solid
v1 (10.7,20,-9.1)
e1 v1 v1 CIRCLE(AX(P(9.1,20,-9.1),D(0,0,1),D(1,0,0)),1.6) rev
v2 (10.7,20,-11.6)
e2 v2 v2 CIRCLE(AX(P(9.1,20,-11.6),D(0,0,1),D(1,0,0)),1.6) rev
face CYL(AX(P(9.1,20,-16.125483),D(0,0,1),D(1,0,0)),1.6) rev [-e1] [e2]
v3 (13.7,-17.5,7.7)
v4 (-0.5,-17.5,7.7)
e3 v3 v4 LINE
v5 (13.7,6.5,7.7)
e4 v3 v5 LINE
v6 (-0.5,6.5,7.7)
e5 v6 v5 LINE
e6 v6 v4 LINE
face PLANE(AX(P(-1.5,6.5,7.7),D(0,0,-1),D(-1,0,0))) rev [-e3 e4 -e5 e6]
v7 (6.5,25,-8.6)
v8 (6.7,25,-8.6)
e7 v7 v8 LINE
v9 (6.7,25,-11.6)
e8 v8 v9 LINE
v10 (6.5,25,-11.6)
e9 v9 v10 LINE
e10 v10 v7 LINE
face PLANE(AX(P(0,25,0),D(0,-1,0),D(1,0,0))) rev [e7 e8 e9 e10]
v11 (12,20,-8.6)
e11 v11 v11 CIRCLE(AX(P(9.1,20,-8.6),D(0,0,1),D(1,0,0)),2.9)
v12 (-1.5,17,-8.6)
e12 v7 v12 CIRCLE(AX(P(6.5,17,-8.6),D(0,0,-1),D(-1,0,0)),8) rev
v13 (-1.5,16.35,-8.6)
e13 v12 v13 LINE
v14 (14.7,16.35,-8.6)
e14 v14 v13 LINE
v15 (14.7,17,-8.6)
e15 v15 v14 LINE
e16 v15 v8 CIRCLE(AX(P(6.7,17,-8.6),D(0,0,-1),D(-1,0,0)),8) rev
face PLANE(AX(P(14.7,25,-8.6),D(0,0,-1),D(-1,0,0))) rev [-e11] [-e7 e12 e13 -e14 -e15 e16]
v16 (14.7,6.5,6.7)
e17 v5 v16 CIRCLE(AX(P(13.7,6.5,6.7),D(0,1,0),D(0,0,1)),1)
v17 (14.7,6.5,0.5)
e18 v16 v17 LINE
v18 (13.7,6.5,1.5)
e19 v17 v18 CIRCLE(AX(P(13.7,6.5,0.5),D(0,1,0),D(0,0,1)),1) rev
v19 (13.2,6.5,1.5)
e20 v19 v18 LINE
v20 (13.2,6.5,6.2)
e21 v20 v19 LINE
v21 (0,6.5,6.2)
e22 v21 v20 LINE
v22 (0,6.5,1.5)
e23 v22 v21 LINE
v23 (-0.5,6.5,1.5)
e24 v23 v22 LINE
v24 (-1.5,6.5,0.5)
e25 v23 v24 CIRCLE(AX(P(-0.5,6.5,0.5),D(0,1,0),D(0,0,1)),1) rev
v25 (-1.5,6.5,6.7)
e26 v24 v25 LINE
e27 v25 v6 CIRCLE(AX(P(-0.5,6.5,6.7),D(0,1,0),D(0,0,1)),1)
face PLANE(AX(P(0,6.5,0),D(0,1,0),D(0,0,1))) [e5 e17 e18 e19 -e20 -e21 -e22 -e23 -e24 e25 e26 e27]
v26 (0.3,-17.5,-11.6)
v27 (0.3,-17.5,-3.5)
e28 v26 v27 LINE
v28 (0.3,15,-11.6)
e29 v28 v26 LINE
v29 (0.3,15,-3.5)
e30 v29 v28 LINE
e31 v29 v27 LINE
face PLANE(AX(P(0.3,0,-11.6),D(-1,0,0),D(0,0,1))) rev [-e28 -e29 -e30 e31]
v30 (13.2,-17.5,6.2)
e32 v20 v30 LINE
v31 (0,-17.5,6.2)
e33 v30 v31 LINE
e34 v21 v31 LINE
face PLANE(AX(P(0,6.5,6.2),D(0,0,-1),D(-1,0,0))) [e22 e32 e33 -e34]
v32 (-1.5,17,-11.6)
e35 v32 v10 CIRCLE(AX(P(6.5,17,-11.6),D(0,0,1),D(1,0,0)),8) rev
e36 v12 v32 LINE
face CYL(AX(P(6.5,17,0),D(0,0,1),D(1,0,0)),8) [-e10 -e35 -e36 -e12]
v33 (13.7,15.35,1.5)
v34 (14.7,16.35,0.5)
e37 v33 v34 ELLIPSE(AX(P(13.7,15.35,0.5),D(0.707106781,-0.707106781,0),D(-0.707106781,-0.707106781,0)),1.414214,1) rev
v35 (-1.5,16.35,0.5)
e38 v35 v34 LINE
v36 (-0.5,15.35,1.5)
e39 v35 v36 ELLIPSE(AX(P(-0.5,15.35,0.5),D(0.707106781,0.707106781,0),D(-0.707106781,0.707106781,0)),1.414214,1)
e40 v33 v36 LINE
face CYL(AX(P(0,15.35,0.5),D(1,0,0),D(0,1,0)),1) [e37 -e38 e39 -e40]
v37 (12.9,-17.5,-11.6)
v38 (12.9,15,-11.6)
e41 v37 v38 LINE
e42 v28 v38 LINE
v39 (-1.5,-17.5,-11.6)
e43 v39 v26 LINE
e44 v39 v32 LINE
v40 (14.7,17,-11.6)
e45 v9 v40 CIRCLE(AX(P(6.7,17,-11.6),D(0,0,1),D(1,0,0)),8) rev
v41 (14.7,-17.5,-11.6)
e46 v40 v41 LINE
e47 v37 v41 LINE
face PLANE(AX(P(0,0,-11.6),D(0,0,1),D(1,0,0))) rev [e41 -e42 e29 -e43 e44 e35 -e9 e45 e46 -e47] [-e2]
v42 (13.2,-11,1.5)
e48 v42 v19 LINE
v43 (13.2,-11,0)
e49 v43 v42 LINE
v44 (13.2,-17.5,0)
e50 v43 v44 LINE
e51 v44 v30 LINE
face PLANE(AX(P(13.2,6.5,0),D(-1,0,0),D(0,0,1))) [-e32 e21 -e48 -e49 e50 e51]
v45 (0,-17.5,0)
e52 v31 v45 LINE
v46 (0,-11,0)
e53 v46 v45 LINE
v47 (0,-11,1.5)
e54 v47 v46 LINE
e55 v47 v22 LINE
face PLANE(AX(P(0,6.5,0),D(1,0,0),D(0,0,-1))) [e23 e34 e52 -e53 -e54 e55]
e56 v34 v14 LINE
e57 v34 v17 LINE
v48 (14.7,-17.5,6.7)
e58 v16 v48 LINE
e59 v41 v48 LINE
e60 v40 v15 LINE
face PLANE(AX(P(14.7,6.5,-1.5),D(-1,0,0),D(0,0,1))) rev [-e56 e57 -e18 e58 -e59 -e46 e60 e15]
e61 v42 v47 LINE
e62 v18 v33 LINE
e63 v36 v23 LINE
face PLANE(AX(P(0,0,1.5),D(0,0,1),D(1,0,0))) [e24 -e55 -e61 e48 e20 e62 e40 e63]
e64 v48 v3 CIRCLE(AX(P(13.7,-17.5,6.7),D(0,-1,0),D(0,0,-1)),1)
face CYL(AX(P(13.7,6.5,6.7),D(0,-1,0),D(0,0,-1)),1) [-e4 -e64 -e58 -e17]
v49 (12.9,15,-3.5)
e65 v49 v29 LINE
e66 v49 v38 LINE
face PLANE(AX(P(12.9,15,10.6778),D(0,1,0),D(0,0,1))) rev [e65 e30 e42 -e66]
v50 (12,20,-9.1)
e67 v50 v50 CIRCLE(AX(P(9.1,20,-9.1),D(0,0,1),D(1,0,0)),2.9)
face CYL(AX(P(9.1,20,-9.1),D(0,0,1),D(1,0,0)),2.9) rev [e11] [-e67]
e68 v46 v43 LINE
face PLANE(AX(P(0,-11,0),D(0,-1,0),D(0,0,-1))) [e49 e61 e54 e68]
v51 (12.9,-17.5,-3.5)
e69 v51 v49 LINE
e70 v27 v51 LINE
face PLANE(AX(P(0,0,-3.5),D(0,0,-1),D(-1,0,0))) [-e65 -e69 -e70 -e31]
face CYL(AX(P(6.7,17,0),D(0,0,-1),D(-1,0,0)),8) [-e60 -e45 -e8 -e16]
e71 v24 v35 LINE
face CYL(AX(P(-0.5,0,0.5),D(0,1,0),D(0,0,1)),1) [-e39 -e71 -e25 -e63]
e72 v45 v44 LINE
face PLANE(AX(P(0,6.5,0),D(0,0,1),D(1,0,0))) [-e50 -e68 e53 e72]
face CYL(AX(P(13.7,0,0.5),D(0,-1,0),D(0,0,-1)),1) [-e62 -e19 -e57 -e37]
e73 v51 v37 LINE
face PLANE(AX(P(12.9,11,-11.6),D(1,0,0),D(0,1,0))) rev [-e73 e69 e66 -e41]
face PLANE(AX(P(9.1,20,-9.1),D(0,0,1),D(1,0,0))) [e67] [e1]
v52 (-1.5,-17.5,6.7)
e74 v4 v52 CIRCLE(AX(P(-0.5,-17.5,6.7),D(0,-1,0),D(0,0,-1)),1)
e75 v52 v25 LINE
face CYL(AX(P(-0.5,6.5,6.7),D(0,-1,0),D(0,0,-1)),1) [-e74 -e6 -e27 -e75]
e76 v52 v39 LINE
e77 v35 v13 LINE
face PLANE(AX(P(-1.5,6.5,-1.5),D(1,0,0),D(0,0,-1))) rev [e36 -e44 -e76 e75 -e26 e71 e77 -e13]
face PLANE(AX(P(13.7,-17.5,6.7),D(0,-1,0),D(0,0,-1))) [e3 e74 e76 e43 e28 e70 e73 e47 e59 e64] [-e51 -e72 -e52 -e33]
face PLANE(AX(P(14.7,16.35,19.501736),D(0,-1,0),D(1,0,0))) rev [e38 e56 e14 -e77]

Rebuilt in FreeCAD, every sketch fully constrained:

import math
import FreeCAD as App
import Part
import Sketcher
from FreeCAD import Vector
Q = App.Units.Quantity


def edges_at(feature, points):
    """Names of the edges that pass closest to the given points."""
    edges = feature.Shape.Edges
    near = lambda p: min(range(len(edges)), key=lambda i: edges[i].distToShape(Part.Vertex(*p))[0])
    return sorted({f"Edge{near(p) + 1}" for p in points})

doc = App.newDocument("Part")
params = doc.addObject("Spreadsheet::Sheet", "Params")
for row, (alias, value) in enumerate([
    ("sketch1_width", "16.2 mm"),
    ("sketch1_width2", "13.2 mm"),
    ("sketch1_height", "9.2 mm"),
    ("sketch1_height2", "6.2 mm"),
    ("pad1_length", "6.5 mm"),
    ("sketch2_height", "12 mm"),
    ("sketch2_width", "16.2 mm"),
    ("pad2_length", "2 mm"),
    ("sketch3_height", "12 mm"),
    ("sketch3_height2", "11 mm"),
    ("sketch3_width", "16.2 mm"),
    ("sketch3_width2", "1.8 mm"),
    ("pad3_length", "8.1 mm"),
    ("sketch4_height", "3 mm"),
    ("sketch4_width", "16.2 mm"),
    ("pad4_length", "13 mm"),
    ("sketch5_diameter", "3.2 mm"),
    ("pocket1_length", "3 mm"),
    ("sketch6_height", "2 mm"),
    ("sketch6_width", "16.2 mm"),
    ("pad5_length", "3 mm"),
    ("sketch7_diameter", "5.8 mm"),
    ("pocket2_length", "0.5 mm"),
    ("fillet_radius", "1 mm"),
    ("fillet2_radius", "8 mm"),
    ("sketch8_radius", "1 mm"),
    ("sketch8_width", "14.2 mm"),
    ("sketch8_width2", "1.8 mm"),
    ("sketch8_width3", "13.2 mm"),
    ("sketch8_height", "18.3 mm"),
    ("pad6_length", "3.5 mm"),
    ("sketch9_width", "13.2 mm"),
    ("sketch9_height", "1.5 mm"),
    ("pad7_length", "3.5 mm"),
    ("sketch10_radius", "1 mm"),
    ("sketch10_width", "14.2 mm"),
    ("sketch10_width2", "1.8 mm"),
    ("sketch10_width3", "13.2 mm"),
    ("sketch10_height", "18.3 mm"),
    ("pad8_length", "14 mm"),
    ("sketch11_width", "13.2 mm"),
    ("sketch11_height", "1.5 mm"),
    ("pad9_length", "14 mm"),
    ("sketch12_width", "16.2 mm"),
    ("sketch12_height", "7.85 mm"),
    ("pad10_length", "10.1 mm"),
    ("sketch13_width", "12.6 mm"),
    ("sketch13_height", "6.5 mm"),
    ("pocket3_length", "8.1 mm"),
    ("fillet3_radius", "1 mm"),
], start=1):
    params.set(f"A{row}", alias)
    params.set(f"B{row}", "=" + value)
    params.setAlias(f"B{row}", alias)

body = doc.addObject("PartDesign::Body", "Body")

# Sketch on XZ plane
sketch1 = body.newObject("Sketcher::SketchObject", "Sketch")
sketch1.AttachmentSupport = (doc.getObject("XZ_Plane"), [""])
sketch1.MapMode = "FlatFace"
sketch1.addGeometry([
    Part.LineSegment(Vector(-2, -2, 0), Vector(-2, 8, 0)),  # 0
    Part.LineSegment(Vector(-2, 8, 0), Vector(15, 8, 0)),  # 1
    Part.LineSegment(Vector(15, 8, 0), Vector(15, -2, 0)),  # 2
    Part.LineSegment(Vector(15, -2, 0), Vector(-2, -2, 0)),  # 3
    Part.LineSegment(Vector(13, 6, 0), Vector(0, 6, 0)),  # 4
    Part.LineSegment(Vector(0, 6, 0), Vector(0, 0, 0)),  # 5
    Part.LineSegment(Vector(0, 0, 0), Vector(13, 0, 0)),  # 6
    Part.LineSegment(Vector(13, 0, 0), Vector(13, 6, 0)),  # 7
], False)
sketch1.addConstraint([
    Sketcher.Constraint("Coincident", 0, 2, 1, 1),
    Sketcher.Constraint("Coincident", 1, 2, 2, 1),
    Sketcher.Constraint("Coincident", 2, 2, 3, 1),
    Sketcher.Constraint("Coincident", 3, 2, 0, 1),
    Sketcher.Constraint("Coincident", 4, 2, 5, 1),
    Sketcher.Constraint("Coincident", 5, 2, 6, 1),
    Sketcher.Constraint("Coincident", 6, 2, 7, 1),
    Sketcher.Constraint("Coincident", 7, 2, 4, 1),
    Sketcher.Constraint("Vertical", 0),
    Sketcher.Constraint("Horizontal", 1),
    Sketcher.Constraint("Vertical", 2),
    Sketcher.Constraint("Horizontal", 3),
    Sketcher.Constraint("Horizontal", 4),
    Sketcher.Constraint("Vertical", 5),
    Sketcher.Constraint("Horizontal", 6),
    Sketcher.Constraint("Vertical", 7),
    Sketcher.Constraint("Coincident", 5, 2, -1, 1),
    Sketcher.Constraint("DistanceX", 1, 1, 1, 2, Q("16.2 mm")),
    Sketcher.Constraint("DistanceX", 4, 2, 4, 1, Q("13.2 mm")),
    Sketcher.Constraint("DistanceY", 0, 1, 0, 2, Q("9.2 mm")),
    Sketcher.Constraint("DistanceY", 5, 2, 5, 1, Q("6.2 mm")),
    Sketcher.Constraint("DistanceX", 0, 2, -1, 1, Q("1.5 mm")),
    Sketcher.Constraint("DistanceY", -1, 1, 0, 2, Q("7.7 mm")),
])
sketch1.setExpression("Constraints[17]", "Params.sketch1_width")
sketch1.setExpression("Constraints[18]", "Params.sketch1_width2")
sketch1.setExpression("Constraints[19]", "Params.sketch1_height")
sketch1.setExpression("Constraints[20]", "Params.sketch1_height2")
pad1 = body.newObject("PartDesign::Pad", "Pad")
pad1.Profile = sketch1
pad1.setExpression("Length", "Params.pad1_length")
pad1.Reversed = True

# Sketch on XY plane
sketch2 = body.newObject("Sketcher::SketchObject", "Sketch001")
sketch2.AttachmentSupport = (doc.getObject("XY_Plane"), [""])
sketch2.MapMode = "FlatFace"
sketch2.AttachmentOffset = App.Placement(Vector(0, 0, -1.5), App.Rotation())
sketch2.addGeometry([
    Part.LineSegment(Vector(15, 12, 0), Vector(15, 0, 0)),
    Part.LineSegment(Vector(15, 0, 0), Vector(-2, 0, 0)),
    Part.LineSegment(Vector(-2, 0, 0), Vector(-2, 12, 0)),
    Part.LineSegment(Vector(-2, 12, 0), Vector(15, 12, 0)),
], False)
sketch2.addConstraint([
    Sketcher.Constraint("Coincident", 0, 2, 1, 1),
    Sketcher.Constraint("Coincident", 1, 2, 2, 1),
    Sketcher.Constraint("Coincident", 2, 2, 3, 1),
    Sketcher.Constraint("Coincident", 3, 2, 0, 1),
    Sketcher.Constraint("Vertical", 0),
    Sketcher.Constraint("Horizontal", 1),
    Sketcher.Constraint("Vertical", 2),
    Sketcher.Constraint("Horizontal", 3),
    Sketcher.Constraint("PointOnObject", 0, 2, -1),
    Sketcher.Constraint("DistanceY", 0, 2, 0, 1, Q("12 mm")),
    Sketcher.Constraint("DistanceX", 1, 2, 1, 1, Q("16.2 mm")),
    Sketcher.Constraint("DistanceX", -1, 1, 0, 2, Q("14.7 mm")),
])
sketch2.setExpression("Constraints[9]", "Params.sketch2_height")
sketch2.setExpression("Constraints[10]", "Params.sketch2_width")
pad2 = body.newObject("PartDesign::Pad", "Pad001")
pad2.Profile = sketch2
pad2.setExpression("Length", "Params.pad2_length")
pad2.Reversed = True

# Sketch on XY plane
sketch3 = body.newObject("Sketcher::SketchObject", "Sketch002")
sketch3.AttachmentSupport = (doc.getObject("XY_Plane"), [""])
sketch3.MapMode = "FlatFace"
sketch3.AttachmentOffset = App.Placement(Vector(0, 0, -3.5), App.Rotation())
sketch3.addGeometry([
    Part.LineSegment(Vector(-1.5, 0, 0), Vector(-1.5, 12, 0)),  # 0
    Part.LineSegment(Vector(-1.5, 12, 0), Vector(14.7, 12, 0)),  # 1
    Part.LineSegment(Vector(14.7, 12, 0), Vector(14.7, 0, 0)),  # 2
    Part.LineSegment(Vector(14.7, 0, 0), Vector(12.9, 0, 0)),  # 3
    Part.LineSegment(Vector(12.9, 0, 0), Vector(12.9, 11, 0)),  # 4
    Part.LineSegment(Vector(12.9, 11, 0), Vector(0.3, 11, 0)),  # 5
    Part.LineSegment(Vector(0.3, 11, 0), Vector(0.3, 0, 0)),  # 6
    Part.LineSegment(Vector(0.3, 0, 0), Vector(-1.5, 0, 0)),  # 7
], False)
sketch3.addConstraint([
    Sketcher.Constraint("Coincident", 0, 2, 1, 1),
    Sketcher.Constraint("Coincident", 1, 2, 2, 1),
    Sketcher.Constraint("Coincident", 2, 2, 3, 1),
    Sketcher.Constraint("Coincident", 3, 2, 4, 1),
    Sketcher.Constraint("Coincident", 4, 2, 5, 1),
    Sketcher.Constraint("Coincident", 5, 2, 6, 1),
    Sketcher.Constraint("Coincident", 6, 2, 7, 1),
    Sketcher.Constraint("Coincident", 7, 2, 0, 1),
    Sketcher.Constraint("Vertical", 0),
    Sketcher.Constraint("Horizontal", 1),
    Sketcher.Constraint("Vertical", 2),
    Sketcher.Constraint("Horizontal", 3),
    Sketcher.Constraint("Vertical", 4),
    Sketcher.Constraint("Horizontal", 5),
    Sketcher.Constraint("Vertical", 6),
    Sketcher.Constraint("Horizontal", 7),
    Sketcher.Constraint("PointOnObject", 2, 2, -1),
    Sketcher.Constraint("PointOnObject", 6, 2, -1),
    Sketcher.Constraint("Equal", 3, 7),
    Sketcher.Constraint("DistanceY", 0, 1, 0, 2, Q("12 mm")),
    Sketcher.Constraint("DistanceY", 4, 1, 4, 2, Q("11 mm")),
    Sketcher.Constraint("DistanceX", 1, 1, 1, 2, Q("16.2 mm")),
    Sketcher.Constraint("DistanceX", 3, 2, 3, 1, Q("1.8 mm")),
    Sketcher.Constraint("DistanceX", 0, 2, -1, 1, Q("1.5 mm")),
])
sketch3.setExpression("Constraints[19]", "Params.sketch3_height")
sketch3.setExpression("Constraints[20]", "Params.sketch3_height2")
sketch3.setExpression("Constraints[21]", "Params.sketch3_width")
sketch3.setExpression("Constraints[22]", "Params.sketch3_width2")
pad3 = body.newObject("PartDesign::Pad", "Pad002")
pad3.Profile = sketch3
pad3.setExpression("Length", "Params.pad3_length")
pad3.Reversed = True

# Sketch on XZ plane
sketch4 = body.newObject("Sketcher::SketchObject", "Sketch003")
sketch4.AttachmentSupport = (doc.getObject("XZ_Plane"), [""])
sketch4.MapMode = "FlatFace"
sketch4.AttachmentOffset = App.Placement(Vector(0, 0, -12), App.Rotation())
sketch4.addGeometry([
    Part.LineSegment(Vector(-1.5, -11.6, 0), Vector(-1.5, -8.6, 0)),
    Part.LineSegment(Vector(-1.5, -8.6, 0), Vector(14.7, -8.6, 0)),
    Part.LineSegment(Vector(14.7, -8.6, 0), Vector(14.7, -11.6, 0)),
    Part.LineSegment(Vector(14.7, -11.6, 0), Vector(-1.5, -11.6, 0)),
], False)
sketch4.addConstraint([
    Sketcher.Constraint("Coincident", 0, 2, 1, 1),
    Sketcher.Constraint("Coincident", 1, 2, 2, 1),
    Sketcher.Constraint("Coincident", 2, 2, 3, 1),
    Sketcher.Constraint("Coincident", 3, 2, 0, 1),
    Sketcher.Constraint("Vertical", 0),
    Sketcher.Constraint("Horizontal", 1),
    Sketcher.Constraint("Vertical", 2),
    Sketcher.Constraint("Horizontal", 3),
    Sketcher.Constraint("DistanceY", 0, 1, 0, 2, Q("3 mm")),
    Sketcher.Constraint("DistanceX", 1, 1, 1, 2, Q("16.2 mm")),
    Sketcher.Constraint("DistanceX", 0, 2, -1, 1, Q("1.5 mm")),
    Sketcher.Constraint("DistanceY", 0, 2, -1, 1, Q("8.6 mm")),
])
sketch4.setExpression("Constraints[8]", "Params.sketch4_height")
sketch4.setExpression("Constraints[9]", "Params.sketch4_width")
pad4 = body.newObject("PartDesign::Pad", "Pad003")
pad4.Profile = sketch4
pad4.setExpression("Length", "Params.pad4_length")
pad4.Reversed = True

# Sketch on XY plane
sketch5 = body.newObject("Sketcher::SketchObject", "Sketch004")
sketch5.AttachmentSupport = (doc.getObject("XY_Plane"), [""])
sketch5.MapMode = "FlatFace"
sketch5.AttachmentOffset = App.Placement(Vector(0, 0, -8.6), App.Rotation())
sketch5.addGeometry(Part.Circle(Vector(9.1, 20, 0), Vector(0, 0, 1), 1.6), False)
sketch5.addConstraint([
    Sketcher.Constraint("Diameter", 0, Q("3.2 mm")),
    Sketcher.Constraint("DistanceY", -1, 1, 0, 3, Q("20 mm")),
    Sketcher.Constraint("DistanceX", -1, 1, 0, 3, Q("9.1 mm")),
])
sketch5.setExpression("Constraints[0]", "Params.sketch5_diameter")
pocket1 = body.newObject("PartDesign::Pocket", "Pocket")
pocket1.Profile = sketch5
pocket1.setExpression("Length", "Params.pocket1_length")

# Sketch on XY plane
sketch6 = body.newObject("Sketcher::SketchObject", "Sketch005")
sketch6.AttachmentSupport = (doc.getObject("XY_Plane"), [""])
sketch6.MapMode = "FlatFace"
sketch6.AttachmentOffset = App.Placement(Vector(0, 0, -1.5), App.Rotation())
sketch6.addGeometry([
    Part.LineSegment(Vector(-1.5, 8.5, 0), Vector(-1.5, 6.5, 0)),
    Part.LineSegment(Vector(-1.5, 6.5, 0), Vector(14.7, 6.5, 0)),
    Part.LineSegment(Vector(14.7, 6.5, 0), Vector(14.7, 8.5, 0)),
    Part.LineSegment(Vector(14.7, 8.5, 0), Vector(-1.5, 8.5, 0)),
], False)
sketch6.addConstraint([
    Sketcher.Constraint("Coincident", 0, 2, 1, 1),
    Sketcher.Constraint("Coincident", 1, 2, 2, 1),
    Sketcher.Constraint("Coincident", 2, 2, 3, 1),
    Sketcher.Constraint("Coincident", 3, 2, 0, 1),
    Sketcher.Constraint("Vertical", 0),
    Sketcher.Constraint("Horizontal", 1),
    Sketcher.Constraint("Vertical", 2),
    Sketcher.Constraint("Horizontal", 3),
    Sketcher.Constraint("DistanceY", 0, 2, 0, 1, Q("2 mm")),
    Sketcher.Constraint("DistanceX", 1, 1, 1, 2, Q("16.2 mm")),
    Sketcher.Constraint("DistanceX", 0, 2, -1, 1, Q("1.5 mm")),
    Sketcher.Constraint("DistanceY", -1, 1, 0, 2, Q("6.5 mm")),
])
sketch6.setExpression("Constraints[8]", "Params.sketch6_height")
sketch6.setExpression("Constraints[9]", "Params.sketch6_width")
pad5 = body.newObject("PartDesign::Pad", "Pad004")
pad5.Profile = sketch6
pad5.setExpression("Length", "Params.pad5_length")

# Sketch on XY plane
sketch7 = body.newObject("Sketcher::SketchObject", "Sketch006")
sketch7.AttachmentSupport = (doc.getObject("XY_Plane"), [""])
sketch7.MapMode = "FlatFace"
sketch7.AttachmentOffset = App.Placement(Vector(0, 0, -8.6), App.Rotation())
sketch7.addGeometry(Part.Circle(Vector(9.1, 20, 0), Vector(0, 0, 1), 2.9), False)
sketch7.addConstraint([
    Sketcher.Constraint("Diameter", 0, Q("5.8 mm")),
    Sketcher.Constraint("DistanceY", -1, 1, 0, 3, Q("20 mm")),
    Sketcher.Constraint("DistanceX", -1, 1, 0, 3, Q("9.1 mm")),
])
sketch7.setExpression("Constraints[0]", "Params.sketch7_diameter")
pocket2 = body.newObject("PartDesign::Pocket", "Pocket001")
pocket2.Profile = sketch7
pocket2.setExpression("Length", "Params.pocket2_length")
doc.recompute()

fillet = body.newObject("PartDesign::Fillet", "Fillet")
fillet.Base = (pocket2, edges_at(pocket2, [(14.7, 3.25, 7.7), (-1.5, 3.25, 7.7)]))
fillet.setExpression("Radius", "Params.fillet_radius")
doc.recompute()

fillet2 = body.newObject("PartDesign::Fillet", "Fillet001")
fillet2.Base = (fillet, edges_at(fillet, [(14.7, 25, -10.1), (-1.5, 25, -10.1)]))
fillet2.setExpression("Radius", "Params.fillet2_radius")

# Sketch on XZ plane
sketch8 = body.newObject("Sketcher::SketchObject", "Sketch007")
sketch8.AttachmentSupport = (doc.getObject("XZ_Plane"), [""])
sketch8.MapMode = "FlatFace"
sketch8.addGeometry([
    Part.LineSegment(Vector(13.7, 7.7, 0), Vector(-0.5, 7.7, 0)),  # 0
    Part.ArcOfCircle(Part.Circle(Vector(-0.5, 6.7, 0), Vector(0, 0, 1), 1), math.radians(90), math.radians(180)),  # 1
    Part.LineSegment(Vector(-1.5, 6.7, 0), Vector(-1.5, -11.6, 0)),  # 2
    Part.LineSegment(Vector(-1.5, -11.6, 0), Vector(0.3, -11.6, 0)),  # 3
    Part.LineSegment(Vector(0.3, -11.6, 0), Vector(0.3, -3.5, 0)),  # 4
    Part.LineSegment(Vector(0.3, -3.5, 0), Vector(12.9, -3.5, 0)),  # 5
    Part.LineSegment(Vector(12.9, -3.5, 0), Vector(12.9, -11.6, 0)),  # 6
    Part.LineSegment(Vector(12.9, -11.6, 0), Vector(14.7, -11.6, 0)),  # 7
    Part.LineSegment(Vector(14.7, -11.6, 0), Vector(14.7, 6.7, 0)),  # 8
    Part.ArcOfCircle(Part.Circle(Vector(13.7, 6.7, 0), Vector(0, 0, 1), 1), math.radians(0), math.radians(90)),  # 9
    Part.LineSegment(Vector(13.2, 0, 0), Vector(0, 0, 0)),  # 10
    Part.LineSegment(Vector(0, 0, 0), Vector(0, 6.2, 0)),  # 11
    Part.LineSegment(Vector(0, 6.2, 0), Vector(13.2, 6.2, 0)),  # 12
    Part.LineSegment(Vector(13.2, 6.2, 0), Vector(13.2, 0, 0)),  # 13
], False)
sketch8.addConstraint([
    Sketcher.Constraint("Tangent", 0, 2, 1, 1),
    Sketcher.Constraint("Tangent", 1, 2, 2, 1),
    Sketcher.Constraint("Coincident", 2, 2, 3, 1),
    Sketcher.Constraint("Coincident", 3, 2, 4, 1),
    Sketcher.Constraint("Coincident", 4, 2, 5, 1),
    Sketcher.Constraint("Coincident", 5, 2, 6, 1),
    Sketcher.Constraint("Coincident", 6, 2, 7, 1),
    Sketcher.Constraint("Coincident", 7, 2, 8, 1),
    Sketcher.Constraint("Tangent", 8, 2, 9, 1),
    Sketcher.Constraint("Tangent", 9, 2, 0, 1),
    Sketcher.Constraint("Coincident", 10, 2, 11, 1),
    Sketcher.Constraint("Coincident", 11, 2, 12, 1),
    Sketcher.Constraint("Coincident", 12, 2, 13, 1),
    Sketcher.Constraint("Coincident", 13, 2, 10, 1),
    Sketcher.Constraint("Horizontal", 0),
    Sketcher.Constraint("Vertical", 2),
    Sketcher.Constraint("Horizontal", 3),
    Sketcher.Constraint("Vertical", 4),
    Sketcher.Constraint("Horizontal", 5),
    Sketcher.Constraint("Vertical", 6),
    Sketcher.Constraint("Horizontal", 7),
    Sketcher.Constraint("Vertical", 8),
    Sketcher.Constraint("Horizontal", 10),
    Sketcher.Constraint("Vertical", 11),
    Sketcher.Constraint("Horizontal", 12),
    Sketcher.Constraint("Vertical", 13),
    Sketcher.Constraint("Coincident", 10, 2, -1, 1),
    Sketcher.Constraint("Equal", 1, 9),
    Sketcher.Constraint("Horizontal", 3, 2, 6, 2),
    Sketcher.Constraint("Equal", 3, 7),
    Sketcher.Constraint("Radius", 1, Q("1 mm")),
    Sketcher.Constraint("DistanceX", 0, 2, 0, 1, Q("14.2 mm")),
    Sketcher.Constraint("DistanceX", 3, 1, 3, 2, Q("1.8 mm")),
    Sketcher.Constraint("DistanceX", 10, 2, 10, 1, Q("13.2 mm")),
    Sketcher.Constraint("DistanceY", 2, 2, 2, 1, Q("18.3 mm")),
    Sketcher.Constraint("DistanceY", 4, 1, 4, 2, Q("8.1 mm")),
    Sketcher.Constraint("DistanceY", 11, 1, 11, 2, Q("6.2 mm")),
    Sketcher.Constraint("DistanceX", 1, 3, -1, 1, Q("0.5 mm")),
    Sketcher.Constraint("DistanceY", -1, 1, 1, 3, Q("6.7 mm")),
])
sketch8.setExpression("Constraints[30]", "Params.sketch8_radius")
sketch8.setExpression("Constraints[31]", "Params.sketch8_width")
sketch8.setExpression("Constraints[32]", "Params.sketch8_width2")
sketch8.setExpression("Constraints[33]", "Params.sketch8_width3")
sketch8.setExpression("Constraints[34]", "Params.sketch8_height")
pad6 = body.newObject("PartDesign::Pad", "Pad005")
pad6.Profile = sketch8
pad6.setExpression("Length", "Params.pad6_length")

# Sketch on XZ plane
sketch9 = body.newObject("Sketcher::SketchObject", "Sketch008")
sketch9.AttachmentSupport = (doc.getObject("XZ_Plane"), [""])
sketch9.MapMode = "FlatFace"
sketch9.AttachmentOffset = App.Placement(Vector(0, 0, -6.5), App.Rotation())
sketch9.addGeometry([
    Part.LineSegment(Vector(0, 1.5, 0), Vector(0, 0, 0)),
    Part.LineSegment(Vector(0, 0, 0), Vector(13.2, 0, 0)),
    Part.LineSegment(Vector(13.2, 0, 0), Vector(13.2, 1.5, 0)),
    Part.LineSegment(Vector(13.2, 1.5, 0), Vector(0, 1.5, 0)),
], False)
sketch9.addConstraint([
    Sketcher.Constraint("Coincident", 0, 2, 1, 1),
    Sketcher.Constraint("Coincident", 1, 2, 2, 1),
    Sketcher.Constraint("Coincident", 2, 2, 3, 1),
    Sketcher.Constraint("Coincident", 3, 2, 0, 1),
    Sketcher.Constraint("Vertical", 0),
    Sketcher.Constraint("Horizontal", 1),
    Sketcher.Constraint("Vertical", 2),
    Sketcher.Constraint("Horizontal", 3),
    Sketcher.Constraint("Coincident", 0, 2, -1, 1),
    Sketcher.Constraint("DistanceX", 1, 1, 1, 2, Q("13.2 mm")),
    Sketcher.Constraint("DistanceY", 0, 2, 0, 1, Q("1.5 mm")),
])
sketch9.setExpression("Constraints[9]", "Params.sketch9_width")
sketch9.setExpression("Constraints[10]", "Params.sketch9_height")
pad7 = body.newObject("PartDesign::Pad", "Pad006")
pad7.Profile = sketch9
pad7.setExpression("Length", "Params.pad7_length")

# Sketch on XZ plane
sketch10 = body.newObject("Sketcher::SketchObject", "Sketch009")
sketch10.AttachmentSupport = (doc.getObject("XZ_Plane"), [""])
sketch10.MapMode = "FlatFace"
sketch10.AttachmentOffset = App.Placement(Vector(0, 0, 3.5), App.Rotation())
sketch10.addGeometry([
    Part.LineSegment(Vector(13.7, 7.7, 0), Vector(-0.5, 7.7, 0)),  # 0
    Part.ArcOfCircle(Part.Circle(Vector(-0.5, 6.7, 0), Vector(0, 0, 1), 1), math.radians(90), math.radians(180)),  # 1
    Part.LineSegment(Vector(-1.5, 6.7, 0), Vector(-1.5, -11.6, 0)),  # 2
    Part.LineSegment(Vector(-1.5, -11.6, 0), Vector(0.3, -11.6, 0)),  # 3
    Part.LineSegment(Vector(0.3, -11.6, 0), Vector(0.3, -3.5, 0)),  # 4
    Part.LineSegment(Vector(0.3, -3.5, 0), Vector(12.9, -3.5, 0)),  # 5
    Part.LineSegment(Vector(12.9, -3.5, 0), Vector(12.9, -11.6, 0)),  # 6
    Part.LineSegment(Vector(12.9, -11.6, 0), Vector(14.7, -11.6, 0)),  # 7
    Part.LineSegment(Vector(14.7, -11.6, 0), Vector(14.7, 6.7, 0)),  # 8
    Part.ArcOfCircle(Part.Circle(Vector(13.7, 6.7, 0), Vector(0, 0, 1), 1), math.radians(0), math.radians(90)),  # 9
    Part.LineSegment(Vector(13.2, 0, 0), Vector(0, 0, 0)),  # 10
    Part.LineSegment(Vector(0, 0, 0), Vector(0, 6.2, 0)),  # 11
    Part.LineSegment(Vector(0, 6.2, 0), Vector(13.2, 6.2, 0)),  # 12
    Part.LineSegment(Vector(13.2, 6.2, 0), Vector(13.2, 0, 0)),  # 13
], False)
sketch10.addConstraint([
    Sketcher.Constraint("Tangent", 0, 2, 1, 1),
    Sketcher.Constraint("Tangent", 1, 2, 2, 1),
    Sketcher.Constraint("Coincident", 2, 2, 3, 1),
    Sketcher.Constraint("Coincident", 3, 2, 4, 1),
    Sketcher.Constraint("Coincident", 4, 2, 5, 1),
    Sketcher.Constraint("Coincident", 5, 2, 6, 1),
    Sketcher.Constraint("Coincident", 6, 2, 7, 1),
    Sketcher.Constraint("Coincident", 7, 2, 8, 1),
    Sketcher.Constraint("Tangent", 8, 2, 9, 1),
    Sketcher.Constraint("Tangent", 9, 2, 0, 1),
    Sketcher.Constraint("Coincident", 10, 2, 11, 1),
    Sketcher.Constraint("Coincident", 11, 2, 12, 1),
    Sketcher.Constraint("Coincident", 12, 2, 13, 1),
    Sketcher.Constraint("Coincident", 13, 2, 10, 1),
    Sketcher.Constraint("Horizontal", 0),
    Sketcher.Constraint("Vertical", 2),
    Sketcher.Constraint("Horizontal", 3),
    Sketcher.Constraint("Vertical", 4),
    Sketcher.Constraint("Horizontal", 5),
    Sketcher.Constraint("Vertical", 6),
    Sketcher.Constraint("Horizontal", 7),
    Sketcher.Constraint("Vertical", 8),
    Sketcher.Constraint("Horizontal", 10),
    Sketcher.Constraint("Vertical", 11),
    Sketcher.Constraint("Horizontal", 12),
    Sketcher.Constraint("Vertical", 13),
    Sketcher.Constraint("Coincident", 10, 2, -1, 1),
    Sketcher.Constraint("Equal", 1, 9),
    Sketcher.Constraint("Horizontal", 3, 2, 6, 2),
    Sketcher.Constraint("Equal", 3, 7),
    Sketcher.Constraint("Radius", 1, Q("1 mm")),
    Sketcher.Constraint("DistanceX", 0, 2, 0, 1, Q("14.2 mm")),
    Sketcher.Constraint("DistanceX", 3, 1, 3, 2, Q("1.8 mm")),
    Sketcher.Constraint("DistanceX", 10, 2, 10, 1, Q("13.2 mm")),
    Sketcher.Constraint("DistanceY", 2, 2, 2, 1, Q("18.3 mm")),
    Sketcher.Constraint("DistanceY", 4, 1, 4, 2, Q("8.1 mm")),
    Sketcher.Constraint("DistanceY", 11, 1, 11, 2, Q("6.2 mm")),
    Sketcher.Constraint("DistanceX", 1, 3, -1, 1, Q("0.5 mm")),
    Sketcher.Constraint("DistanceY", -1, 1, 1, 3, Q("6.7 mm")),
])
sketch10.setExpression("Constraints[30]", "Params.sketch10_radius")
sketch10.setExpression("Constraints[31]", "Params.sketch10_width")
sketch10.setExpression("Constraints[32]", "Params.sketch10_width2")
sketch10.setExpression("Constraints[33]", "Params.sketch10_width3")
sketch10.setExpression("Constraints[34]", "Params.sketch10_height")
pad8 = body.newObject("PartDesign::Pad", "Pad007")
pad8.Profile = sketch10
pad8.setExpression("Length", "Params.pad8_length")

# Sketch on XZ plane
sketch11 = body.newObject("Sketcher::SketchObject", "Sketch010")
sketch11.AttachmentSupport = (doc.getObject("XZ_Plane"), [""])
sketch11.MapMode = "FlatFace"
sketch11.AttachmentOffset = App.Placement(Vector(0, 0, -3), App.Rotation())
sketch11.addGeometry([
    Part.LineSegment(Vector(0, 1.5, 0), Vector(0, 0, 0)),
    Part.LineSegment(Vector(0, 0, 0), Vector(13.2, 0, 0)),
    Part.LineSegment(Vector(13.2, 0, 0), Vector(13.2, 1.5, 0)),
    Part.LineSegment(Vector(13.2, 1.5, 0), Vector(0, 1.5, 0)),
], False)
sketch11.addConstraint([
    Sketcher.Constraint("Coincident", 0, 2, 1, 1),
    Sketcher.Constraint("Coincident", 1, 2, 2, 1),
    Sketcher.Constraint("Coincident", 2, 2, 3, 1),
    Sketcher.Constraint("Coincident", 3, 2, 0, 1),
    Sketcher.Constraint("Vertical", 0),
    Sketcher.Constraint("Horizontal", 1),
    Sketcher.Constraint("Vertical", 2),
    Sketcher.Constraint("Horizontal", 3),
    Sketcher.Constraint("Coincident", 0, 2, -1, 1),
    Sketcher.Constraint("DistanceX", 1, 1, 1, 2, Q("13.2 mm")),
    Sketcher.Constraint("DistanceY", 0, 2, 0, 1, Q("1.5 mm")),
])
sketch11.setExpression("Constraints[9]", "Params.sketch11_width")
sketch11.setExpression("Constraints[10]", "Params.sketch11_height")
pad9 = body.newObject("PartDesign::Pad", "Pad008")
pad9.Profile = sketch11
pad9.setExpression("Length", "Params.pad9_length")

# Sketch on XY plane
sketch12 = body.newObject("Sketcher::SketchObject", "Sketch011")
sketch12.AttachmentSupport = (doc.getObject("XY_Plane"), [""])
sketch12.MapMode = "FlatFace"
sketch12.AttachmentOffset = App.Placement(Vector(0, 0, -8.6), App.Rotation())
sketch12.addGeometry([
    Part.LineSegment(Vector(-2, 16, 0), Vector(-2, 8, 0)),
    Part.LineSegment(Vector(-2, 8, 0), Vector(15, 8, 0)),
    Part.LineSegment(Vector(15, 8, 0), Vector(15, 16, 0)),
    Part.LineSegment(Vector(15, 16, 0), Vector(-2, 16, 0)),
], False)
sketch12.addConstraint([
    Sketcher.Constraint("Coincident", 0, 2, 1, 1),
    Sketcher.Constraint("Coincident", 1, 2, 2, 1),
    Sketcher.Constraint("Coincident", 2, 2, 3, 1),
    Sketcher.Constraint("Coincident", 3, 2, 0, 1),
    Sketcher.Constraint("Vertical", 0),
    Sketcher.Constraint("Horizontal", 1),
    Sketcher.Constraint("Vertical", 2),
    Sketcher.Constraint("Horizontal", 3),
    Sketcher.Constraint("DistanceX", 1, 1, 1, 2, Q("16.2 mm")),
    Sketcher.Constraint("DistanceY", 0, 2, 0, 1, Q("7.85 mm")),
    Sketcher.Constraint("DistanceX", 0, 2, -1, 1, Q("1.5 mm")),
    Sketcher.Constraint("DistanceY", -1, 1, 0, 2, Q("8.5 mm")),
])
sketch12.setExpression("Constraints[8]", "Params.sketch12_width")
sketch12.setExpression("Constraints[9]", "Params.sketch12_height")
pad10 = body.newObject("PartDesign::Pad", "Pad009")
pad10.Profile = sketch12
pad10.setExpression("Length", "Params.pad10_length")

# Sketch on XY plane
sketch13 = body.newObject("Sketcher::SketchObject", "Sketch012")
sketch13.AttachmentSupport = (doc.getObject("XY_Plane"), [""])
sketch13.MapMode = "FlatFace"
sketch13.AttachmentOffset = App.Placement(Vector(0, 0, -11.6), App.Rotation())
sketch13.addGeometry([
    Part.LineSegment(Vector(13, 15, 0), Vector(13, 8, 0)),
    Part.LineSegment(Vector(13, 8, 0), Vector(0, 8, 0)),
    Part.LineSegment(Vector(0, 8, 0), Vector(0, 15, 0)),
    Part.LineSegment(Vector(0, 15, 0), Vector(13, 15, 0)),
], False)
sketch13.addConstraint([
    Sketcher.Constraint("Coincident", 0, 2, 1, 1),
    Sketcher.Constraint("Coincident", 1, 2, 2, 1),
    Sketcher.Constraint("Coincident", 2, 2, 3, 1),
    Sketcher.Constraint("Coincident", 3, 2, 0, 1),
    Sketcher.Constraint("Vertical", 0),
    Sketcher.Constraint("Horizontal", 1),
    Sketcher.Constraint("Vertical", 2),
    Sketcher.Constraint("Horizontal", 3),
    Sketcher.Constraint("DistanceX", 1, 2, 1, 1, Q("12.6 mm")),
    Sketcher.Constraint("DistanceY", 0, 2, 0, 1, Q("6.5 mm")),
    Sketcher.Constraint("DistanceY", -1, 1, 2, 2, Q("15 mm")),
    Sketcher.Constraint("DistanceX", -1, 1, 0, 2, Q("12.9 mm")),
])
sketch13.setExpression("Constraints[8]", "Params.sketch13_width")
sketch13.setExpression("Constraints[9]", "Params.sketch13_height")
pocket3 = body.newObject("PartDesign::Pocket", "Pocket002")
pocket3.Profile = sketch13
pocket3.setExpression("Length", "Params.pocket3_length")
pocket3.Reversed = True
doc.recompute()

fillet3 = body.newObject("PartDesign::Fillet", "Fillet002")
fillet3.Base = (pocket3, edges_at(pocket3, [(6.6, 16.35, 1.5), (14.7, 11.425, 1.5), (-1.5, 11.425, 1.5)]))
fillet3.setExpression("Radius", "Params.fillet3_radius")

doc.recompute()
